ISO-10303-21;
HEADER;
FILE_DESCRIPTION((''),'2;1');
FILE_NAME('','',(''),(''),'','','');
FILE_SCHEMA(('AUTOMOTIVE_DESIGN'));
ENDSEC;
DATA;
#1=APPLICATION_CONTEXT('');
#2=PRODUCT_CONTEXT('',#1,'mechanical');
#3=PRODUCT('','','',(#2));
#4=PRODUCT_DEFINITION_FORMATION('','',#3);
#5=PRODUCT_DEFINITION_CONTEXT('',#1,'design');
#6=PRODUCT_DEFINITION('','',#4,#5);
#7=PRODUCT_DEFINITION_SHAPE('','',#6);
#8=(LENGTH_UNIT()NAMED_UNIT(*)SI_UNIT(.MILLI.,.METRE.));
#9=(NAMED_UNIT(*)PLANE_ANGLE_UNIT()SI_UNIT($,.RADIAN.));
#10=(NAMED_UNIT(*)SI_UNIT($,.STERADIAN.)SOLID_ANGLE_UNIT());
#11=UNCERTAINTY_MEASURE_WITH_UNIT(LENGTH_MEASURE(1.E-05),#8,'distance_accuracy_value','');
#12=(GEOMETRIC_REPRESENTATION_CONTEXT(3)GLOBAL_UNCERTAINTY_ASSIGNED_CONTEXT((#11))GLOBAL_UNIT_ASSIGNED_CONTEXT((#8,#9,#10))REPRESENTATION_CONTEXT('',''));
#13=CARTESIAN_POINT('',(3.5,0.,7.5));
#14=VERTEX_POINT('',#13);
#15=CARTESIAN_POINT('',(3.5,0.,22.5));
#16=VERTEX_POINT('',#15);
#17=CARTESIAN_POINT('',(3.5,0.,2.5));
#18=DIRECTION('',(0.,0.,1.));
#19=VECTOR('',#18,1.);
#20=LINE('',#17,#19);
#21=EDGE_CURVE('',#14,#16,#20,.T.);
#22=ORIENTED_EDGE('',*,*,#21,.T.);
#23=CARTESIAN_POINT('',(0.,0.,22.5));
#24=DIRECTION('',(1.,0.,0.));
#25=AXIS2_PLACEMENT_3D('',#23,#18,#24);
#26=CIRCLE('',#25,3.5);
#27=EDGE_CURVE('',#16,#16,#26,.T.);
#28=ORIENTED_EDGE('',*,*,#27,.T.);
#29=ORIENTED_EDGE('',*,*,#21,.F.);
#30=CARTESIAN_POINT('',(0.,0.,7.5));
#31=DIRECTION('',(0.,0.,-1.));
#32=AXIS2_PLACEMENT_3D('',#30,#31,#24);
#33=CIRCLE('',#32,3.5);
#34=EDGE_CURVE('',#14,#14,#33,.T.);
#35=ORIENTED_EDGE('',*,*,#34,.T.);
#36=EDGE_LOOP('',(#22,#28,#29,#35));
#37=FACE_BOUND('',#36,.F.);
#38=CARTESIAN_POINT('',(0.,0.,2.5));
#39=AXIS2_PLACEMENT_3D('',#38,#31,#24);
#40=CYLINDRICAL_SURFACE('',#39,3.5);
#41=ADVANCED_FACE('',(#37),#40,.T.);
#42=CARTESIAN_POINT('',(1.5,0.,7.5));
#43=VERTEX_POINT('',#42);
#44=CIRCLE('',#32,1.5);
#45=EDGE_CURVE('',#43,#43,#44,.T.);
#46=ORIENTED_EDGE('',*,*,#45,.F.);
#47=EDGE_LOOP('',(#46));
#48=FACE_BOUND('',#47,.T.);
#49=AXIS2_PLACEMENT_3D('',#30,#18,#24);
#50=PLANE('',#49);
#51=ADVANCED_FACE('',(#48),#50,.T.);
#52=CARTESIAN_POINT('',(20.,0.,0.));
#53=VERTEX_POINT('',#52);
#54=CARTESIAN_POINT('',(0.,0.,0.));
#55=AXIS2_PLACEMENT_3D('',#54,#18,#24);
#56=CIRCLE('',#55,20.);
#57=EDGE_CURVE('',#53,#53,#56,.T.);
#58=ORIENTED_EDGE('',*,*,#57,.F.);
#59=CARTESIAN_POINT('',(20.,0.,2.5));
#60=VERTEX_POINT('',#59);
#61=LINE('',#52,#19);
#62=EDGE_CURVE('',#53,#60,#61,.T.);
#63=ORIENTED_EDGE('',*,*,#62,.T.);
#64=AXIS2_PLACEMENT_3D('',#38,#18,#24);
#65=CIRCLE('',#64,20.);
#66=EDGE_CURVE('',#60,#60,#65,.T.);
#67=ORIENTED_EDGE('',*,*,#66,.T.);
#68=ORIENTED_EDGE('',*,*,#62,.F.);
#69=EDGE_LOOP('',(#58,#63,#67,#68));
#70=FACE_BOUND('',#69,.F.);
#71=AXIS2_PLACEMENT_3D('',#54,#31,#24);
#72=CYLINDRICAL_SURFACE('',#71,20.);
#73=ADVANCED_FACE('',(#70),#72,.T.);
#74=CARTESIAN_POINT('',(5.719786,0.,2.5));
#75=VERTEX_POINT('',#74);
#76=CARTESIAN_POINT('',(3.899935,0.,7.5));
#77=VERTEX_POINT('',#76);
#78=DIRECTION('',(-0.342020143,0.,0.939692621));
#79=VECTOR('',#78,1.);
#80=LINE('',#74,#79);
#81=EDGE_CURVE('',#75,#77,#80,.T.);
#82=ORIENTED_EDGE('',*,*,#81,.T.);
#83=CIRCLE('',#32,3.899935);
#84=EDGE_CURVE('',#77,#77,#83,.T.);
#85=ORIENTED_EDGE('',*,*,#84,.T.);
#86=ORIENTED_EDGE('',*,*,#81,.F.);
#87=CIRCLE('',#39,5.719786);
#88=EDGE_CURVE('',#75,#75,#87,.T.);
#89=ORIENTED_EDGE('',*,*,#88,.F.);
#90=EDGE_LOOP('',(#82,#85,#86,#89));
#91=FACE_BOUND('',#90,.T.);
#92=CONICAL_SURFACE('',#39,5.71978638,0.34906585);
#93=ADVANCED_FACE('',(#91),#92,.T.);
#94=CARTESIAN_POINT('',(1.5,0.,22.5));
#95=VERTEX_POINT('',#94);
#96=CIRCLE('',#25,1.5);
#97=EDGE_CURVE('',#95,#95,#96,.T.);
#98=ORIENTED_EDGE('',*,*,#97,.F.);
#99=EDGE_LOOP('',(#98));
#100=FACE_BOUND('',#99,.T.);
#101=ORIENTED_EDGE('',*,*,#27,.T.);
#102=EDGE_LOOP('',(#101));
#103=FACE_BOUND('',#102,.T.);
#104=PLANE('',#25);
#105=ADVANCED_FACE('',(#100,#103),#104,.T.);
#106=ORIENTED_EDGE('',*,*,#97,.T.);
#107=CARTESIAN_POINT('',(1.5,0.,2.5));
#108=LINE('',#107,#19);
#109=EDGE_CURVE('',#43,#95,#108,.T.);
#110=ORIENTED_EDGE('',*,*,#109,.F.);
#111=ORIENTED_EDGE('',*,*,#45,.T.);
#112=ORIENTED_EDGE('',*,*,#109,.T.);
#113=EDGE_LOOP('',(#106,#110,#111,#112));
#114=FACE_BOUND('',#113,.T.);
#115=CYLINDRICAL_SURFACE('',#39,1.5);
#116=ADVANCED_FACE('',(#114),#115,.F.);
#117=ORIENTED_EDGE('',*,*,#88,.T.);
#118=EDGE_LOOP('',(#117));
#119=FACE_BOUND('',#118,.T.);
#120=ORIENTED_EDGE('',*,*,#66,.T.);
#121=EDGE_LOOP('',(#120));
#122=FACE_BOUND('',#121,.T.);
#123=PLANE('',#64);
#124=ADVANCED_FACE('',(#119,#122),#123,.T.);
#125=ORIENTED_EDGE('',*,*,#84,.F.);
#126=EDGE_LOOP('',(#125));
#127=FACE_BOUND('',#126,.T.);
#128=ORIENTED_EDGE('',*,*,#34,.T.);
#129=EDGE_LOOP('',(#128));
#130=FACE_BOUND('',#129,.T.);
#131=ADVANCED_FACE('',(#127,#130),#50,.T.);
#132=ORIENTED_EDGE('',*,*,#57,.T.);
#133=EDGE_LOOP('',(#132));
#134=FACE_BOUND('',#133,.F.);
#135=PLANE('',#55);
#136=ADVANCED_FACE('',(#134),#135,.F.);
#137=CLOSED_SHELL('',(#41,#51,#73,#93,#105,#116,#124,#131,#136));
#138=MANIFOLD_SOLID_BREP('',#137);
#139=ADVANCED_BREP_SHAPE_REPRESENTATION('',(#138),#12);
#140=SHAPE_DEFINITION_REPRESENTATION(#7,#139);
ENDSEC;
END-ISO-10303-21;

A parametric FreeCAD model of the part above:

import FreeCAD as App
import Part
import Sketcher
Q = App.Units.Quantity

doc = App.newDocument("Part")
body = doc.addObject("PartDesign::Body", "Body")

sketch1 = doc.addObject("Sketcher::SketchObject", "Sketch")
body.addObject(sketch1)
sketch1.AttachmentSupport = (doc.XY_Plane, [""])
sketch1.MapMode = "FlatFace"
sketch1.addGeometry(Part.Circle(App.Vector(0, 0, 0), App.Vector(0, 0, 1), 20), False)
sketch1.addConstraint([
    Sketcher.Constraint("Coincident", 0, 3, -1, 1),
    Sketcher.Constraint("Diameter", 0, Q("40 mm")),
])
pad1 = doc.addObject("PartDesign::Pad", "Pad")
body.addObject(pad1)
pad1.Profile = sketch1
pad1.Length = 2.5

sketch2 = doc.addObject("Sketcher::SketchObject", "Sketch001")
body.addObject(sketch2)
sketch2.AttachmentSupport = (doc.XY_Plane, [""])
sketch2.MapMode = "FlatFace"
sketch2.AttachmentOffset = App.Placement(App.Vector(0, 0, 2.5), App.Rotation())
sketch2.addGeometry([
    Part.Circle(App.Vector(0, 0, 0), App.Vector(0, 0, 1), 3.5),
    Part.Circle(App.Vector(0, 0, 0), App.Vector(0, 0, 1), 1.5),
], False)
sketch2.addConstraint([
    Sketcher.Constraint("Coincident", 0, 3, -1, 1),
    Sketcher.Constraint("Coincident", 1, 3, -1, 1),
    Sketcher.Constraint("Diameter", 0, Q("7 mm")),
    Sketcher.Constraint("Diameter", 1, Q("3 mm")),
])
pad2 = doc.addObject("PartDesign::Pad", "Pad001")
body.addObject(pad2)
pad2.Profile = sketch2
pad2.Length = 20

sketch3 = doc.addObject("Sketcher::SketchObject", "Sketch002")
body.addObject(sketch3)
sketch3.AttachmentSupport = (doc.XY_Plane, [""])
sketch3.MapMode = "FlatFace"
sketch3.AttachmentOffset = App.Placement(App.Vector(0, 0, 2.5), App.Rotation())
sketch3.addGeometry(Part.Circle(App.Vector(0, 0, 0), App.Vector(0, 0, 1), 5.719786), False)
sketch3.addConstraint([
    Sketcher.Constraint("Coincident", 0, 3, -1, 1),
    Sketcher.Constraint("Diameter", 0, Q("11.439573 mm")),
])
pad3 = doc.addObject("PartDesign::Pad", "Pad002")
body.addObject(pad3)
pad3.Profile = sketch3
pad3.Length = 5
pad3.TaperAngle = -20

doc.recompute()
